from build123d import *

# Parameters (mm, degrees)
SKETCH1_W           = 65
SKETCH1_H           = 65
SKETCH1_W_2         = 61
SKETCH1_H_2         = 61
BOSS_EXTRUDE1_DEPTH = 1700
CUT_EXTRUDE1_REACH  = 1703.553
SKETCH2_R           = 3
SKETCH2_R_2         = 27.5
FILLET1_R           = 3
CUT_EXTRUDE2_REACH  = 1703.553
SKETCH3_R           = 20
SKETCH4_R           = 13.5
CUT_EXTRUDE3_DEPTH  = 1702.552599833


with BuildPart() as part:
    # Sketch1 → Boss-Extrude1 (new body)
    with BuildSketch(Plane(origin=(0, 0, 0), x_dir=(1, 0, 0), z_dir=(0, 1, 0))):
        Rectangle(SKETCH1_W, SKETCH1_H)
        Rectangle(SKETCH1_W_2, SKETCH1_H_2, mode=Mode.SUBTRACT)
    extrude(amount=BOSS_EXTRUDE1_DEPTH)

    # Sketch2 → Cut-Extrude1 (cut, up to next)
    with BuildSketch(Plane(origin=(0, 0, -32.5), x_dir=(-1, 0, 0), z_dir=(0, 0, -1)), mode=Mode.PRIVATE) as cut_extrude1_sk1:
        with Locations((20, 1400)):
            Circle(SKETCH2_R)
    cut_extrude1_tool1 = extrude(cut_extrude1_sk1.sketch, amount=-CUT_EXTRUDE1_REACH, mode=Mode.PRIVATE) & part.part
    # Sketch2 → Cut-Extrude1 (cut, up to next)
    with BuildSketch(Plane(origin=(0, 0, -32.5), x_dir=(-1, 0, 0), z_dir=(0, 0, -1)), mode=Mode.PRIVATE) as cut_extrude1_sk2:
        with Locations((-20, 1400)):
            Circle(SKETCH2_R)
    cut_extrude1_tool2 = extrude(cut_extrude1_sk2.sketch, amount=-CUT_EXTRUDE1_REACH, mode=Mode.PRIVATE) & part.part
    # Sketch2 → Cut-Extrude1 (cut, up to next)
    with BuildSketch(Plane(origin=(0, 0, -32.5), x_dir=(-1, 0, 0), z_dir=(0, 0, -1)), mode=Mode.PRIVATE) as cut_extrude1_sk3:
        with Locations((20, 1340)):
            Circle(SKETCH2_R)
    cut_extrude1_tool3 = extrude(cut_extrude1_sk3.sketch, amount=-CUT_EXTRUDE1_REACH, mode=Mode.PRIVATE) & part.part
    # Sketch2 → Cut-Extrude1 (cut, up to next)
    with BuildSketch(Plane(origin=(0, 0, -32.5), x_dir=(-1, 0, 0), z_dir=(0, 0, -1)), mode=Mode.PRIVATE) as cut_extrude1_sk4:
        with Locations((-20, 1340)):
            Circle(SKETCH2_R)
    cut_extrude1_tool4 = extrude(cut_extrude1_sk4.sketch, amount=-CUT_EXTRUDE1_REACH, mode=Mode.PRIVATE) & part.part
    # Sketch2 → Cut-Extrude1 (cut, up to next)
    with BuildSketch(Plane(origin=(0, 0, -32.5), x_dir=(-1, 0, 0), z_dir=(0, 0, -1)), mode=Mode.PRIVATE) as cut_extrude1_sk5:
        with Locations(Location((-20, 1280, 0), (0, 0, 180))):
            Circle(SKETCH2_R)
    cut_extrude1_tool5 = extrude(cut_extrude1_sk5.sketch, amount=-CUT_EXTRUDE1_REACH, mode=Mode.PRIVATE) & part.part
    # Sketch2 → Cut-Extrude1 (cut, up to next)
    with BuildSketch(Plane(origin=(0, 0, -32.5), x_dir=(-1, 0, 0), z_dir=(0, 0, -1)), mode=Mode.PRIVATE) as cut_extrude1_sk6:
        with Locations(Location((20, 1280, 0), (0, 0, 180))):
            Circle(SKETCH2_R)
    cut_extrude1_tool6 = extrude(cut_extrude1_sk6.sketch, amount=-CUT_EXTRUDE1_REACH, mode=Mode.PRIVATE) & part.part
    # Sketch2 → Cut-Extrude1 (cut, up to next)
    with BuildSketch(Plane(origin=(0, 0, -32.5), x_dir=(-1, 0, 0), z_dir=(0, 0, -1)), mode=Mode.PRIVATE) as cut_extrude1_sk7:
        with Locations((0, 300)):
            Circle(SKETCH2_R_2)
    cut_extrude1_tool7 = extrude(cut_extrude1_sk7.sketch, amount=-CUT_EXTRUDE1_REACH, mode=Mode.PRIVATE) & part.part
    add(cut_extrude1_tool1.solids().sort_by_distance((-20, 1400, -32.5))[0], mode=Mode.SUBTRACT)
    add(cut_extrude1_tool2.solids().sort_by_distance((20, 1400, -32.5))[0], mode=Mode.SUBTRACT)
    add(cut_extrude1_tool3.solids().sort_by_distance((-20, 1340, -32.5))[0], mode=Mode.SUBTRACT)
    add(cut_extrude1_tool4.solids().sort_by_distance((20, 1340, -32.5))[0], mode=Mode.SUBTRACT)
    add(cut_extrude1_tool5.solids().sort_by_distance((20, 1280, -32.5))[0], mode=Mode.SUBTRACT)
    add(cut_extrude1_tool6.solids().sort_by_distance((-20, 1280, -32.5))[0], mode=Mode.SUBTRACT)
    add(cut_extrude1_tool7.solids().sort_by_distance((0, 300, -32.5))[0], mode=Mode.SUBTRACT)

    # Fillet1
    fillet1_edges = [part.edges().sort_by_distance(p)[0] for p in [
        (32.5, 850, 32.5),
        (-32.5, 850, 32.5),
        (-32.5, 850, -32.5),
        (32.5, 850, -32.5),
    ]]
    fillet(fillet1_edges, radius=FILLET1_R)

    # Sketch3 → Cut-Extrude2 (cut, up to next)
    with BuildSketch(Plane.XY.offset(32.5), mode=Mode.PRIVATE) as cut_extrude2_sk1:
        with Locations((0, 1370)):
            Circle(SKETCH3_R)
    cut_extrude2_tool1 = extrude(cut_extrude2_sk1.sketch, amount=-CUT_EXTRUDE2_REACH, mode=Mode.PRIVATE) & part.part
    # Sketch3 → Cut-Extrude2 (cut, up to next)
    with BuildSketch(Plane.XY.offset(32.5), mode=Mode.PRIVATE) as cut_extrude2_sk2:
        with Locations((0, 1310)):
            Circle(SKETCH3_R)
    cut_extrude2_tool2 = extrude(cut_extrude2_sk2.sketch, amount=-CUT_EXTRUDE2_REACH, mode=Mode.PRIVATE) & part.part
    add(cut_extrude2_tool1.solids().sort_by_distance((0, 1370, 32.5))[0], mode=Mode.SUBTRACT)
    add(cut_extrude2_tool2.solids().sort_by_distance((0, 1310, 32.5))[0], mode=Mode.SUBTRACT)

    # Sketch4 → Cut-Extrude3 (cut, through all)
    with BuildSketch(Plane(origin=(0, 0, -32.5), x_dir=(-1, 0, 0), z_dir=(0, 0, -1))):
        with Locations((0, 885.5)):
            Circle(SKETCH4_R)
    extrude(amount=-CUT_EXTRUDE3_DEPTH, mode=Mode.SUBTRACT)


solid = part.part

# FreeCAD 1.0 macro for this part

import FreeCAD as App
import Part
import Sketcher


def edges_at(feature, points):
    """Names of the edges that pass closest to the given points."""
    edges = feature.Shape.Edges
    near = lambda p: min(range(len(edges)), key=lambda i: edges[i].distToShape(Part.Vertex(*p))[0])
    return sorted({f"Edge{near(p) + 1}" for p in points})

doc = App.newDocument("Part")
body = doc.addObject("PartDesign::Body", "Body")

# Sketch on XZ plane
sketch1 = body.newObject("Sketcher::SketchObject", "Sketch")
sketch1.AttachmentSupport = (doc.getObject("XZ_Plane"), [""])
sketch1.MapMode = "FlatFace"
sketch1.addGeometry(Part.LineSegment(App.Vector(-32.5, -32.5, 0), App.Vector(-32.5, 32.5, 0)), False)
sketch1.addGeometry(Part.LineSegment(App.Vector(-32.5, 32.5, 0), App.Vector(32.5, 32.5, 0)), False)
sketch1.addGeometry(Part.LineSegment(App.Vector(32.5, 32.5, 0), App.Vector(32.5, -32.5, 0)), False)
sketch1.addGeometry(Part.LineSegment(App.Vector(32.5, -32.5, 0), App.Vector(-32.5, -32.5, 0)), False)
sketch1.addGeometry(Part.LineSegment(App.Vector(30.5, 30.5, 0), App.Vector(-30.5, 30.5, 0)), False)
sketch1.addGeometry(Part.LineSegment(App.Vector(-30.5, 30.5, 0), App.Vector(-30.5, -30.5, 0)), False)
sketch1.addGeometry(Part.LineSegment(App.Vector(-30.5, -30.5, 0), App.Vector(30.5, -30.5, 0)), False)
sketch1.addGeometry(Part.LineSegment(App.Vector(30.5, -30.5, 0), App.Vector(30.5, 30.5, 0)), False)
sketch1.addConstraint(Sketcher.Constraint("Coincident", 0, 2, 1, 1))
sketch1.addConstraint(Sketcher.Constraint("Coincident", 1, 2, 2, 1))
sketch1.addConstraint(Sketcher.Constraint("Coincident", 2, 2, 3, 1))
sketch1.addConstraint(Sketcher.Constraint("Coincident", 3, 2, 0, 1))
sketch1.addConstraint(Sketcher.Constraint("Coincident", 4, 2, 5, 1))
sketch1.addConstraint(Sketcher.Constraint("Coincident", 5, 2, 6, 1))
sketch1.addConstraint(Sketcher.Constraint("Coincident", 6, 2, 7, 1))
sketch1.addConstraint(Sketcher.Constraint("Coincident", 7, 2, 4, 1))
sketch1.addConstraint(Sketcher.Constraint("Vertical", 0))
sketch1.addConstraint(Sketcher.Constraint("Horizontal", 1))
sketch1.addConstraint(Sketcher.Constraint("Vertical", 2))
sketch1.addConstraint(Sketcher.Constraint("Horizontal", 3))
sketch1.addConstraint(Sketcher.Constraint("Horizontal", 4))
sketch1.addConstraint(Sketcher.Constraint("Vertical", 5))
sketch1.addConstraint(Sketcher.Constraint("Horizontal", 6))
sketch1.addConstraint(Sketcher.Constraint("Vertical", 7))
sketch1.addConstraint(Sketcher.Constraint("Symmetric", 0, 2, 2, 2, -1, 1))
sketch1.addConstraint(Sketcher.Constraint("Symmetric", 4, 2, 6, 2, -1, 1))
sketch1.addConstraint(Sketcher.Constraint("Equal", 3, 0))
sketch1.addConstraint(Sketcher.Constraint("Equal", 6, 5))
sketch1.addConstraint(Sketcher.Constraint("DistanceX", 1, 1, 1, 2, 65.0))
sketch1.addConstraint(Sketcher.Constraint("DistanceX", 4, 2, 4, 1, 61.0))
pad1 = body.newObject("PartDesign::Pad", "Pad")
pad1.Profile = sketch1
pad1.Length = 1700
pad1.Reversed = True

# Sketch on XY plane
sketch2 = body.newObject("Sketcher::SketchObject", "Sketch001")
sketch2.AttachmentSupport = (doc.getObject("XY_Plane"), [""])
sketch2.MapMode = "FlatFace"
sketch2.AttachmentOffset = App.Placement(App.Vector(0, 0, -32.5), App.Rotation())
sketch2.addGeometry(Part.Circle(App.Vector(-20, 1400, 0), App.Vector(0, 0, 1), 3), False)
sketch2.addConstraint(Sketcher.Constraint("Diameter", 0, 6.0))
sketch2.addConstraint(Sketcher.Constraint("DistanceX", 0, 3, -1, 1, 20.0))
sketch2.addConstraint(Sketcher.Constraint("DistanceY", -1, 1, 0, 3, 1400.0))
pocket1 = body.newObject("PartDesign::Pocket", "Pocket")
pocket1.Profile = sketch2
pocket1.Type = "UpToFirst"
pocket1.Reversed = True

# Sketch on XY plane
sketch3 = body.newObject("Sketcher::SketchObject", "Sketch002")
sketch3.AttachmentSupport = (doc.getObject("XY_Plane"), [""])
sketch3.MapMode = "FlatFace"
sketch3.AttachmentOffset = App.Placement(App.Vector(0, 0, -32.5), App.Rotation())
sketch3.addGeometry(Part.Circle(App.Vector(20, 1400, 0), App.Vector(0, 0, 1), 3), False)
sketch3.addConstraint(Sketcher.Constraint("Diameter", 0, 6.0))
sketch3.addConstraint(Sketcher.Constraint("DistanceX", -1, 1, 0, 3, 20.0))
sketch3.addConstraint(Sketcher.Constraint("DistanceY", -1, 1, 0, 3, 1400.0))
pocket2 = body.newObject("PartDesign::Pocket", "Pocket001")
pocket2.Profile = sketch3
pocket2.Type = "UpToFirst"
pocket2.Reversed = True

# Sketch on XY plane
sketch4 = body.newObject("Sketcher::SketchObject", "Sketch003")
sketch4.AttachmentSupport = (doc.getObject("XY_Plane"), [""])
sketch4.MapMode = "FlatFace"
sketch4.AttachmentOffset = App.Placement(App.Vector(0, 0, -32.5), App.Rotation())
sketch4.addGeometry(Part.Circle(App.Vector(-20, 1340, 0), App.Vector(0, 0, 1), 3), False)
sketch4.addConstraint(Sketcher.Constraint("Diameter", 0, 6.0))
sketch4.addConstraint(Sketcher.Constraint("DistanceX", 0, 3, -1, 1, 20.0))
sketch4.addConstraint(Sketcher.Constraint("DistanceY", -1, 1, 0, 3, 1340.0))
pocket3 = body.newObject("PartDesign::Pocket", "Pocket002")
pocket3.Profile = sketch4
pocket3.Type = "UpToFirst"
pocket3.Reversed = True

# Sketch on XY plane
sketch5 = body.newObject("Sketcher::SketchObject", "Sketch004")
sketch5.AttachmentSupport = (doc.getObject("XY_Plane"), [""])
sketch5.MapMode = "FlatFace"
sketch5.AttachmentOffset = App.Placement(App.Vector(0, 0, -32.5), App.Rotation())
sketch5.addGeometry(Part.Circle(App.Vector(20, 1340, 0), App.Vector(0, 0, 1), 3), False)
sketch5.addConstraint(Sketcher.Constraint("Diameter", 0, 6.0))
sketch5.addConstraint(Sketcher.Constraint("DistanceX", -1, 1, 0, 3, 20.0))
sketch5.addConstraint(Sketcher.Constraint("DistanceY", -1, 1, 0, 3, 1340.0))
pocket4 = body.newObject("PartDesign::Pocket", "Pocket003")
pocket4.Profile = sketch5
pocket4.Type = "UpToFirst"
pocket4.Reversed = True

# Sketch on XY plane
sketch6 = body.newObject("Sketcher::SketchObject", "Sketch005")
sketch6.AttachmentSupport = (doc.getObject("XY_Plane"), [""])
sketch6.MapMode = "FlatFace"
sketch6.AttachmentOffset = App.Placement(App.Vector(0, 0, -32.5), App.Rotation())
sketch6.addGeometry(Part.Circle(App.Vector(20, 1280, 0), App.Vector(0, 0, 1), 3), False)
sketch6.addConstraint(Sketcher.Constraint("Diameter", 0, 6.0))
sketch6.addConstraint(Sketcher.Constraint("DistanceX", -1, 1, 0, 3, 20.0))
sketch6.addConstraint(Sketcher.Constraint("DistanceY", -1, 1, 0, 3, 1280.0))
pocket5 = body.newObject("PartDesign::Pocket", "Pocket004")
pocket5.Profile = sketch6
pocket5.Type = "UpToFirst"
pocket5.Reversed = True

# Sketch on XY plane
sketch7 = body.newObject("Sketcher::SketchObject", "Sketch006")
sketch7.AttachmentSupport = (doc.getObject("XY_Plane"), [""])
sketch7.MapMode = "FlatFace"
sketch7.AttachmentOffset = App.Placement(App.Vector(0, 0, -32.5), App.Rotation())
sketch7.addGeometry(Part.Circle(App.Vector(-20, 1280, 0), App.Vector(0, 0, 1), 3), False)
sketch7.addConstraint(Sketcher.Constraint("Diameter", 0, 6.0))
sketch7.addConstraint(Sketcher.Constraint("DistanceX", 0, 3, -1, 1, 20.0))
sketch7.addConstraint(Sketcher.Constraint("DistanceY", -1, 1, 0, 3, 1280.0))
pocket6 = body.newObject("PartDesign::Pocket", "Pocket005")
pocket6.Profile = sketch7
pocket6.Type = "UpToFirst"
pocket6.Reversed = True

# Sketch on XY plane
sketch8 = body.newObject("Sketcher::SketchObject", "Sketch007")
sketch8.AttachmentSupport = (doc.getObject("XY_Plane"), [""])
sketch8.MapMode = "FlatFace"
sketch8.AttachmentOffset = App.Placement(App.Vector(0, 0, -32.5), App.Rotation())
sketch8.addGeometry(Part.Circle(App.Vector(0, 300, 0), App.Vector(0, 0, 1), 27.5), False)
sketch8.addConstraint(Sketcher.Constraint("PointOnObject", 0, 3, -2))
sketch8.addConstraint(Sketcher.Constraint("Diameter", 0, 55.0))
sketch8.addConstraint(Sketcher.Constraint("DistanceY", -1, 1, 0, 3, 300.0))
pocket7 = body.newObject("PartDesign::Pocket", "Pocket006")
pocket7.Profile = sketch8
pocket7.Type = "UpToFirst"
pocket7.Reversed = True
doc.recompute()

fillet = body.newObject("PartDesign::Fillet", "Fillet")
fillet.Base = (pocket7, edges_at(pocket7, [
    (32.5, 850, 32.5),
    (-32.5, 850, 32.5),
    (-32.5, 850, -32.5),
    (32.5, 850, -32.5),
]))
fillet.Radius = 3

# Sketch on XY plane
sketch9 = body.newObject("Sketcher::SketchObject", "Sketch008")
sketch9.AttachmentSupport = (doc.getObject("XY_Plane"), [""])
sketch9.MapMode = "FlatFace"
sketch9.AttachmentOffset = App.Placement(App.Vector(0, 0, 32.5), App.Rotation())
sketch9.addGeometry(Part.Circle(App.Vector(0, 1370, 0), App.Vector(0, 0, 1), 20), False)
sketch9.addConstraint(Sketcher.Constraint("PointOnObject", 0, 3, -2))
sketch9.addConstraint(Sketcher.Constraint("Diameter", 0, 40.0))
sketch9.addConstraint(Sketcher.Constraint("DistanceY", -1, 1, 0, 3, 1370.0))
pocket8 = body.newObject("PartDesign::Pocket", "Pocket007")
pocket8.Profile = sketch9
pocket8.Type = "UpToFirst"

# Sketch on XY plane
sketch10 = body.newObject("Sketcher::SketchObject", "Sketch009")
sketch10.AttachmentSupport = (doc.getObject("XY_Plane"), [""])
sketch10.MapMode = "FlatFace"
sketch10.AttachmentOffset = App.Placement(App.Vector(0, 0, 32.5), App.Rotation())
sketch10.addGeometry(Part.Circle(App.Vector(0, 1310, 0), App.Vector(0, 0, 1), 20), False)
sketch10.addConstraint(Sketcher.Constraint("PointOnObject", 0, 3, -2))
sketch10.addConstraint(Sketcher.Constraint("Diameter", 0, 40.0))
sketch10.addConstraint(Sketcher.Constraint("DistanceY", -1, 1, 0, 3, 1310.0))
pocket9 = body.newObject("PartDesign::Pocket", "Pocket008")
pocket9.Profile = sketch10
pocket9.Type = "UpToFirst"

# Sketch on XY plane
sketch11 = body.newObject("Sketcher::SketchObject", "Sketch010")
sketch11.AttachmentSupport = (doc.getObject("XY_Plane"), [""])
sketch11.MapMode = "FlatFace"
sketch11.AttachmentOffset = App.Placement(App.Vector(0, 0, -32.5), App.Rotation())
sketch11.addGeometry(Part.Circle(App.Vector(0, 885.5, 0), App.Vector(0, 0, 1), 13.5), False)
sketch11.addConstraint(Sketcher.Constraint("PointOnObject", 0, 3, -2))
sketch11.addConstraint(Sketcher.Constraint("Diameter", 0, 27.0))
sketch11.addConstraint(Sketcher.Constraint("DistanceY", -1, 1, 0, 3, 885.5))
pocket10 = body.newObject("PartDesign::Pocket", "Pocket009")
pocket10.Profile = sketch11
pocket10.Type = "ThroughAll"
pocket10.Reversed = True

doc.recompute()
